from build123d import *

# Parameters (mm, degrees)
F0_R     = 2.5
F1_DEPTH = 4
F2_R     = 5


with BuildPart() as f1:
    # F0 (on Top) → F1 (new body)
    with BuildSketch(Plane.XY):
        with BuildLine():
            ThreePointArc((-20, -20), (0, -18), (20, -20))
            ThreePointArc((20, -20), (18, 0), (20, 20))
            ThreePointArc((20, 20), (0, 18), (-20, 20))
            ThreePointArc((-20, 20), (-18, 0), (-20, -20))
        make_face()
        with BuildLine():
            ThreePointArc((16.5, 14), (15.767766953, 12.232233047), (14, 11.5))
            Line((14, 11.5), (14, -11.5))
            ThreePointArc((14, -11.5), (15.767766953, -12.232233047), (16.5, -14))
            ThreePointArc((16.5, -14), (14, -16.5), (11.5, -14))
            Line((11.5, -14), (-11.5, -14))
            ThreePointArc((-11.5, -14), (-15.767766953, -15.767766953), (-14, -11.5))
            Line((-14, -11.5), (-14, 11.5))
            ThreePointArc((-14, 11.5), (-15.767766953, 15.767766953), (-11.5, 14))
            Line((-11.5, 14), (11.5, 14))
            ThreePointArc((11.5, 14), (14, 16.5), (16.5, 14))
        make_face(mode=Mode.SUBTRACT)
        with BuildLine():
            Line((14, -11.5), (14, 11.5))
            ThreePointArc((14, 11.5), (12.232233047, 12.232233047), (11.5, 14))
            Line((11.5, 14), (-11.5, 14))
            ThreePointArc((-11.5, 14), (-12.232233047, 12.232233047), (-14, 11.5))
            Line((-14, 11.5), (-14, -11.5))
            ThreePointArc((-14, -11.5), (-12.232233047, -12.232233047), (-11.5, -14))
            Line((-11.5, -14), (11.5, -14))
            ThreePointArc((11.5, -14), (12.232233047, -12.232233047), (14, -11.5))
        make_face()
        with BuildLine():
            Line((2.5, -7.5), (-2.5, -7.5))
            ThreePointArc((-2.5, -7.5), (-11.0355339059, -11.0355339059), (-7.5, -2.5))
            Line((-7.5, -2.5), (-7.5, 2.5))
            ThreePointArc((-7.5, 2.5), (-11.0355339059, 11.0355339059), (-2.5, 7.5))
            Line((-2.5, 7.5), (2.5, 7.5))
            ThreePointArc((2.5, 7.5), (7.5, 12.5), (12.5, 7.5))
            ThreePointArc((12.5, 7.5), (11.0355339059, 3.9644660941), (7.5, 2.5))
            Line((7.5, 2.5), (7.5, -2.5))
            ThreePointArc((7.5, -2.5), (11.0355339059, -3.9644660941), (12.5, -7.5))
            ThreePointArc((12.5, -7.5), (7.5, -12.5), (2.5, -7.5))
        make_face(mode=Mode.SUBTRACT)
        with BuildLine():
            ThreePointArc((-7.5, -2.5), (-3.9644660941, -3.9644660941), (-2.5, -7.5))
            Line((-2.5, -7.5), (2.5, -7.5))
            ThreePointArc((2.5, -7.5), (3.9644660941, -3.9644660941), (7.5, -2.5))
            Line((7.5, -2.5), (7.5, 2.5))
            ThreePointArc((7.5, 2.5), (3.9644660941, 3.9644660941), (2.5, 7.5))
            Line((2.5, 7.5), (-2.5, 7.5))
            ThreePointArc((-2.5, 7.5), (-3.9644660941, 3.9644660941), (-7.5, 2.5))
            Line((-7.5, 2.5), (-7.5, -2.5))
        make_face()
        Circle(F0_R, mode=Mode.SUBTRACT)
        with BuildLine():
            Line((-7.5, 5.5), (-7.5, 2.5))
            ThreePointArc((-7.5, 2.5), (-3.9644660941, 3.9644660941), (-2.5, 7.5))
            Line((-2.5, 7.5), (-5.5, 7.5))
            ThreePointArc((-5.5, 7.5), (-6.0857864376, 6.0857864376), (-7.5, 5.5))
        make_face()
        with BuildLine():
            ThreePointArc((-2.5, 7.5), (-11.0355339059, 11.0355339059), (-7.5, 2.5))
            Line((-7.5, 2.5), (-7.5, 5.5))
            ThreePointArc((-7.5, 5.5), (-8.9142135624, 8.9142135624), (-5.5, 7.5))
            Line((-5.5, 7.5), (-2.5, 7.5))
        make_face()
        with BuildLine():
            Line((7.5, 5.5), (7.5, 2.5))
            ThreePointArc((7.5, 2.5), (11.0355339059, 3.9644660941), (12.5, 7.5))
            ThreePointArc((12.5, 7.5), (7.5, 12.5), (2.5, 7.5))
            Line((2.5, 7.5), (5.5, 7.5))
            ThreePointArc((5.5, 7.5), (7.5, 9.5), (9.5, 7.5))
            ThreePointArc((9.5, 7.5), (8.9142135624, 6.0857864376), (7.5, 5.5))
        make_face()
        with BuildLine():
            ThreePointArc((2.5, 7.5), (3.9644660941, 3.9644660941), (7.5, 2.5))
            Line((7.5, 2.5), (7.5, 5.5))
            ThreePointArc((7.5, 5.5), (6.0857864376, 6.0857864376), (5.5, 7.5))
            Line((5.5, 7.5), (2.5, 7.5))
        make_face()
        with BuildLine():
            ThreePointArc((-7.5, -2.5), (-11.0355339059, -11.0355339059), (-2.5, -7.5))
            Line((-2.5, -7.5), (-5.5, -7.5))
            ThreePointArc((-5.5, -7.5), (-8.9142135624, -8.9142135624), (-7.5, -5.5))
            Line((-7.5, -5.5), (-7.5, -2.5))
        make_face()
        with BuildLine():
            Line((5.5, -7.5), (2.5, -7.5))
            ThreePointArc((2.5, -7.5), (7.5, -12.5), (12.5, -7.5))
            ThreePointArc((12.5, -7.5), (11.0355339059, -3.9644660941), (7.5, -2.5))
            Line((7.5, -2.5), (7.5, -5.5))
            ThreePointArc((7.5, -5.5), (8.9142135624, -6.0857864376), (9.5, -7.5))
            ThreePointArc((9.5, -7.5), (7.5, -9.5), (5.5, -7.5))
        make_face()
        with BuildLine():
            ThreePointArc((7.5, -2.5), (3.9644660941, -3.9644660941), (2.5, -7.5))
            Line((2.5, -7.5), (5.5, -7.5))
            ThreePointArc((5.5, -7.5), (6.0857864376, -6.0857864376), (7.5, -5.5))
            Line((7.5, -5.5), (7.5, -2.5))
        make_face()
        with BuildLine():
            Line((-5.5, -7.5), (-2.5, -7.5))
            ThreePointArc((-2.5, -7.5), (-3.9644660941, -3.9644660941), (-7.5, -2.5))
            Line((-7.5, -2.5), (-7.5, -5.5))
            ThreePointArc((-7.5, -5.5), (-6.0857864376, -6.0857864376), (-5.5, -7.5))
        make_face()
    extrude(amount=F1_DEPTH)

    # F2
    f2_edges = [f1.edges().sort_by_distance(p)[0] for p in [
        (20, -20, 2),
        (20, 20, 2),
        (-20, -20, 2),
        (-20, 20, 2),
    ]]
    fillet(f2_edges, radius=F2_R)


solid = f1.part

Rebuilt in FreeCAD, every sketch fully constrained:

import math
import FreeCAD as App
import Part
import Sketcher


def edges_at(feature, points):
    """Names of the edges that pass closest to the given points."""
    edges = feature.Shape.Edges
    near = lambda p: min(range(len(edges)), key=lambda i: edges[i].distToShape(Part.Vertex(*p))[0])
    return sorted({f"Edge{near(p) + 1}" for p in points})

doc = App.newDocument("Part")
body = doc.addObject("PartDesign::Body", "Body")

sketch1 = body.newObject("Sketcher::SketchObject", "Sketch")
sketch1.AttachmentSupport = (doc.getObject("XY_Plane"), [""])
sketch1.MapMode = "FlatFace"
sketch1.addGeometry([
    Part.ArcOfCircle(Part.Circle(App.Vector(0, -119, 0), App.Vector(0, 0, 1), 101), math.radians(79), math.radians(101)),
    Part.ArcOfCircle(Part.Circle(App.Vector(119, 0, 0), App.Vector(0, 0, 1), 101), math.radians(169), math.radians(191)),
    Part.ArcOfCircle(Part.Circle(App.Vector(0, 119, 0), App.Vector(0, 0, 1), 101), math.radians(-101), math.radians(-79)),
    Part.ArcOfCircle(Part.Circle(App.Vector(-119, 0, 0), App.Vector(0, 0, 1), 101), math.radians(-11), math.radians(11)),
    Part.ArcOfCircle(Part.Circle(App.Vector(-14, -14, 0), App.Vector(0, 0, 1), 2.5), math.radians(90), math.radians(360)),
    Part.ArcOfCircle(Part.Circle(App.Vector(-14, -14, 0), App.Vector(0, 0, 1), 2.5), math.radians(0), math.radians(90)),
    Part.ArcOfCircle(Part.Circle(App.Vector(-7.5, -7.5, 0), App.Vector(0, 0, 1), 2), math.radians(90), math.radians(360)),
    Part.ArcOfCircle(Part.Circle(App.Vector(-7.5, -7.5, 0), App.Vector(0, 0, 1), 2), math.radians(0), math.radians(90)),
    Part.ArcOfCircle(Part.Circle(App.Vector(14, -14, 0), App.Vector(0, 0, 1), 2.5), math.radians(180), math.radians(360)),
    Part.ArcOfCircle(Part.Circle(App.Vector(14, -14, 0), App.Vector(0, 0, 1), 2.5), math.radians(90), math.radians(180)),
    Part.ArcOfCircle(Part.Circle(App.Vector(14, -14, 0), App.Vector(0, 0, 1), 2.5), math.radians(0), math.radians(90)),
    Part.ArcOfCircle(Part.Circle(App.Vector(7.5, -7.5, 0), App.Vector(0, 0, 1), 2), math.radians(0), math.radians(90)),
    Part.ArcOfCircle(Part.Circle(App.Vector(7.5, -7.5, 0), App.Vector(0, 0, 1), 2), math.radians(180), math.radians(360)),
    Part.ArcOfCircle(Part.Circle(App.Vector(7.5, -7.5, 0), App.Vector(0, 0, 1), 2), math.radians(90), math.radians(180)),
    Part.ArcOfCircle(Part.Circle(App.Vector(-7.5, 7.5, 0), App.Vector(0, 0, 1), 2), math.radians(-90), math.radians(0)),
    Part.ArcOfCircle(Part.Circle(App.Vector(-7.5, 7.5, 0), App.Vector(0, 0, 1), 2), math.radians(0), math.radians(270)),
    Part.ArcOfCircle(Part.Circle(App.Vector(-14, 14, 0), App.Vector(0, 0, 1), 2.5), math.radians(0), math.radians(270)),
    Part.ArcOfCircle(Part.Circle(App.Vector(-14, 14, 0), App.Vector(0, 0, 1), 2.5), math.radians(-90), math.radians(0)),
    Part.Circle(App.Vector(0, 0, 0), App.Vector(0, 0, 1), 2.5),
    Part.ArcOfCircle(Part.Circle(App.Vector(7.5, 7.5, 0), App.Vector(0, 0, 1), 2), math.radians(0), math.radians(180)),
    Part.ArcOfCircle(Part.Circle(App.Vector(7.5, 7.5, 0), App.Vector(0, 0, 1), 2), math.radians(-90), math.radians(0)),
    Part.ArcOfCircle(Part.Circle(App.Vector(7.5, 7.5, 0), App.Vector(0, 0, 1), 2), math.radians(180), math.radians(270)),
    Part.ArcOfCircle(Part.Circle(App.Vector(14, 14, 0), App.Vector(0, 0, 1), 2.5), math.radians(0), math.radians(180)),
    Part.ArcOfCircle(Part.Circle(App.Vector(14, 14, 0), App.Vector(0, 0, 1), 2.5), math.radians(-90), math.radians(0)),
    Part.ArcOfCircle(Part.Circle(App.Vector(14, 14, 0), App.Vector(0, 0, 1), 2.5), math.radians(180), math.radians(270)),
], False)
sketch1.addConstraint([
    Sketcher.Constraint("Coincident", 0, 1, 1, 2),
    Sketcher.Constraint("Coincident", 1, 1, 2, 2),
    Sketcher.Constraint("Coincident", 2, 1, 3, 2),
    Sketcher.Constraint("Coincident", 3, 1, 0, 2),
    Sketcher.Constraint("Tangent", 4, 1, 5, 2),
    Sketcher.Constraint("Coincident", 5, 1, 4, 2),
    Sketcher.Constraint("Tangent", 6, 1, 7, 2),
    Sketcher.Constraint("Coincident", 7, 1, 6, 2),
    Sketcher.Constraint("Tangent", 8, 1, 9, 2),
    Sketcher.Constraint("Tangent", 9, 1, 10, 2),
    Sketcher.Constraint("Tangent", 10, 1, 8, 2),
    Sketcher.Constraint("Tangent", 11, 1, 12, 2),
    Sketcher.Constraint("Tangent", 12, 1, 13, 2),
    Sketcher.Constraint("Tangent", 13, 1, 11, 2),
    Sketcher.Constraint("Tangent", 14, 1, 15, 2),
    Sketcher.Constraint("Coincident", 15, 1, 14, 2),
    Sketcher.Constraint("Tangent", 16, 1, 17, 2),
    Sketcher.Constraint("Coincident", 17, 1, 16, 2),
    Sketcher.Constraint("Tangent", 19, 1, 20, 2),
    Sketcher.Constraint("Tangent", 20, 1, 21, 2),
    Sketcher.Constraint("Tangent", 21, 1, 19, 2),
    Sketcher.Constraint("Tangent", 22, 1, 23, 2),
    Sketcher.Constraint("Tangent", 23, 1, 24, 2),
    Sketcher.Constraint("Tangent", 24, 1, 22, 2),
    Sketcher.Constraint("Coincident", 18, 3, -1, 1),
    Sketcher.Constraint("Equal", 0, 1),
    Sketcher.Constraint("Equal", 1, 2),
    Sketcher.Constraint("Equal", 2, 3),
    Sketcher.Constraint("Equal", 5, 8),
    Sketcher.Constraint("Equal", 7, 11),
    Sketcher.Constraint("Equal", 13, 14),
    Sketcher.Constraint("Equal", 10, 16),
    Sketcher.Constraint("Equal", 17, 18),
    Sketcher.Constraint("Equal", 15, 19),
    Sketcher.Constraint("Equal", 18, 22),
    Sketcher.Constraint("Symmetric", 0, 3, 2, 3, -1, 1),
    Sketcher.Constraint("Symmetric", 1, 3, 3, 3, -1, 1),
    Sketcher.Constraint("Symmetric", 11, 3, 14, 3, -1, 1),
    Sketcher.Constraint("Symmetric", 8, 3, 16, 3, -1, 1),
    Sketcher.Constraint("Symmetric", 6, 3, 19, 3, -1, 1),
    Sketcher.Constraint("Symmetric", 4, 3, 22, 3, -1, 1),
    Sketcher.Constraint("Symmetric", 4, 3, 8, 3, -2),
    Sketcher.Constraint("Symmetric", 6, 3, 11, 3, -2),
    Sketcher.Constraint("Symmetric", 1, 1, 2, 1, -2),
    Sketcher.Constraint("Horizontal", 10, 3, 5, 1),
    Sketcher.Constraint("Horizontal", 13, 3, 7, 1),
    Sketcher.Constraint("Horizontal", 5, 1, 8, 1),
    Sketcher.Constraint("Horizontal", 8, 1, 10, 1),
    Sketcher.Constraint("Horizontal", 7, 1, 11, 1),
    Sketcher.Constraint("Horizontal", 11, 1, 12, 1),
    Sketcher.Constraint("Horizontal", 21, 3, 15, 1),
    Sketcher.Constraint("Horizontal", 24, 3, 16, 1),
    Sketcher.Constraint("Horizontal", 15, 1, 19, 1),
    Sketcher.Constraint("Horizontal", 19, 1, 21, 1),
    Sketcher.Constraint("Horizontal", 16, 1, 22, 1),
    Sketcher.Constraint("Horizontal", 22, 1, 24, 1),
    Sketcher.Constraint("Vertical", 17, 3, 4, 1),
    Sketcher.Constraint("Vertical", 15, 3, 6, 1),
    Sketcher.Constraint("Vertical", 24, 3, 9, 1),
    Sketcher.Constraint("Vertical", 21, 3, 13, 1),
    Sketcher.Constraint("Vertical", 6, 1, 14, 1),
    Sketcher.Constraint("Vertical", 4, 1, 17, 1),
    Sketcher.Constraint("Vertical", 13, 1, 20, 1),
    Sketcher.Constraint("Vertical", 9, 1, 23, 1),
    Sketcher.Constraint("Diameter", 18, 5.0),
    Sketcher.Constraint("Radius", 0, 101.0),
    Sketcher.Constraint("Radius", 6, 2.0),
    Sketcher.Constraint("DistanceY", 0, 3, -1, 1, 119.0),
    Sketcher.Constraint("DistanceX", -1, 1, 1, 3, 119.0),
    Sketcher.Constraint("DistanceX", 4, 3, -1, 1, 14.0),
    Sketcher.Constraint("DistanceY", 4, 3, -1, 1, 14.0),
    Sketcher.Constraint("DistanceX", 6, 3, 11, 3, 15.0),
    Sketcher.Constraint("DistanceY", 6, 3, 14, 3, 15.0),
])
pad1 = body.newObject("PartDesign::Pad", "Pad")
pad1.Profile = sketch1
pad1.Length = 4
doc.recompute()

fillet = body.newObject("PartDesign::Fillet", "Fillet")
fillet.Base = (pad1, edges_at(pad1, [
    (20, -20, 2),
    (20, 20, 2),
    (-20, -20, 2),
    (-20, 20, 2),
]))
fillet.Radius = 5

doc.recompute()
